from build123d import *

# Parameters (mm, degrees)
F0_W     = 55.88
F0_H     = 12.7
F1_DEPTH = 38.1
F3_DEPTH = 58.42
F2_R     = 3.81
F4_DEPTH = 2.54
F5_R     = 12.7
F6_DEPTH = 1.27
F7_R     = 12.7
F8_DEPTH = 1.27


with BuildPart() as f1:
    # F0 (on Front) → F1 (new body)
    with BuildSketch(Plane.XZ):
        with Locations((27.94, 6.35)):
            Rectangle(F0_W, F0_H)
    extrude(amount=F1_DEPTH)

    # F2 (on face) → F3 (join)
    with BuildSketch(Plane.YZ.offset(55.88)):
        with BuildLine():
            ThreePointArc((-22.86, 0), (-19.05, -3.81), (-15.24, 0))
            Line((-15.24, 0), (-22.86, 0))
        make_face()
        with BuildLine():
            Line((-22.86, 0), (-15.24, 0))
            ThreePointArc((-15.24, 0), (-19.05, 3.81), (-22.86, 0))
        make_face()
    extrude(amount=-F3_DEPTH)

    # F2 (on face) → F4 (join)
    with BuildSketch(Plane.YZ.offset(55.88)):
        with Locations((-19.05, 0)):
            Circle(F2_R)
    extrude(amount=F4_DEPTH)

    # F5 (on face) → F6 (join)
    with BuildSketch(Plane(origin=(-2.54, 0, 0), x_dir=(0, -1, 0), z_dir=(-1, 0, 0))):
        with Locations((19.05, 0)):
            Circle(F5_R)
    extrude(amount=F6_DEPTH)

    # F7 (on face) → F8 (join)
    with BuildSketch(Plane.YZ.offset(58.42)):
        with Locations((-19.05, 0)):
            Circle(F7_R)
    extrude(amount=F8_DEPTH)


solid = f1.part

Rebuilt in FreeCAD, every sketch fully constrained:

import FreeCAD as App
import Part
import Sketcher
from FreeCAD import Vector
Q = App.Units.Quantity


def add_polygon(sketch, points):
    """Adds a closed chain of lines whose ends are joined by coincident constraints."""
    first, n = sketch.GeometryCount, len(points)
    for a, b in zip(points, points[1:] + points[:1]):
        sketch.addGeometry(Part.LineSegment(App.Vector(*a, 0), App.Vector(*b, 0)), False)
    for i in range(n):
        sketch.addConstraint(Sketcher.Constraint("Coincident", first + i, 2, first + (i + 1) % n, 1))

doc = App.newDocument("Part")
body = doc.addObject("PartDesign::Body", "Body")

# Sketch on XZ plane
sketch1 = doc.addObject("Sketcher::SketchObject", "Sketch")
body.addObject(sketch1)
sketch1.AttachmentSupport = (doc.XZ_Plane, [""])
sketch1.MapMode = "FlatFace"
add_polygon(sketch1, [(0, 13), (0, 0), (56, 0), (56, 13)])  # lines 0-3
sketch1.addConstraint([
    Sketcher.Constraint("Vertical", 0),
    Sketcher.Constraint("Horizontal", 1),
    Sketcher.Constraint("Vertical", 2),
    Sketcher.Constraint("Horizontal", 3),
    Sketcher.Constraint("Coincident", 0, 2, -1, 1),
    Sketcher.Constraint("DistanceX", 1, 1, 1, 2, Q("2.2 in")),
    Sketcher.Constraint("DistanceY", 0, 2, 0, 1, Q("0.5 in")),
])
pad1 = doc.addObject("PartDesign::Pad", "Pad")
body.addObject(pad1)
pad1.Profile = sketch1
pad1.Length = Q("1.5 in")

# Sketch on YZ plane
sketch2 = doc.addObject("Sketcher::SketchObject", "Sketch001")
body.addObject(sketch2)
sketch2.AttachmentSupport = (doc.YZ_Plane, [""])
sketch2.MapMode = "FlatFace"
sketch2.AttachmentOffset = App.Placement(Vector(0, 0, 2.2 * 25.4), App.Rotation())
sketch2.addGeometry(Part.Circle(Vector(-19.1, 0, 0), Vector(0, 0, 1), 3.8), False)
sketch2.addConstraint([
    Sketcher.Constraint("PointOnObject", 0, 3, -1),
    Sketcher.Constraint("Diameter", 0, Q("0.3 in")),
    Sketcher.Constraint("DistanceX", 0, 3, -1, 1, Q("0.75 in")),
])
pad2 = doc.addObject("PartDesign::Pad", "Pad001")
body.addObject(pad2)
pad2.Profile = sketch2
pad2.Length = Q("2.3 in")
pad2.Reversed = True

# Sketch on YZ plane
sketch3 = doc.addObject("Sketcher::SketchObject", "Sketch002")
body.addObject(sketch3)
sketch3.AttachmentSupport = (doc.YZ_Plane, [""])
sketch3.MapMode = "FlatFace"
sketch3.AttachmentOffset = App.Placement(Vector(0, 0, 2.2 * 25.4), App.Rotation())
sketch3.addGeometry(Part.Circle(Vector(-19.1, 0, 0), Vector(0, 0, 1), 3.8), False)
sketch3.addConstraint([
    Sketcher.Constraint("PointOnObject", 0, 3, -1),
    Sketcher.Constraint("Diameter", 0, Q("0.3 in")),
    Sketcher.Constraint("DistanceX", 0, 3, -1, 1, Q("0.75 in")),
])
pad3 = doc.addObject("PartDesign::Pad", "Pad002")
body.addObject(pad3)
pad3.Profile = sketch3
pad3.Length = Q("0.1 in")

# Sketch on YZ plane
sketch4 = doc.addObject("Sketcher::SketchObject", "Sketch003")
body.addObject(sketch4)
sketch4.AttachmentSupport = (doc.YZ_Plane, [""])
sketch4.MapMode = "FlatFace"
sketch4.AttachmentOffset = App.Placement(Vector(0, 0, -0.1 * 25.4), App.Rotation())
sketch4.addGeometry(Part.Circle(Vector(-19, 0, 0), Vector(0, 0, 1), 13), False)
sketch4.addConstraint([
    Sketcher.Constraint("PointOnObject", 0, 3, -1),
    Sketcher.Constraint("Diameter", 0, Q("1 in")),
    Sketcher.Constraint("DistanceX", 0, 3, -1, 1, Q("0.75 in")),
])
pad4 = doc.addObject("PartDesign::Pad", "Pad003")
body.addObject(pad4)
pad4.Profile = sketch4
pad4.Length = Q("0.05 in")
pad4.Reversed = True

# Sketch on YZ plane
sketch5 = doc.addObject("Sketcher::SketchObject", "Sketch004")
body.addObject(sketch5)
sketch5.AttachmentSupport = (doc.YZ_Plane, [""])
sketch5.MapMode = "FlatFace"
sketch5.AttachmentOffset = App.Placement(Vector(0, 0, 2.3 * 25.4), App.Rotation())
sketch5.addGeometry(Part.Circle(Vector(-19, 0, 0), Vector(0, 0, 1), 13), False)
sketch5.addConstraint([
    Sketcher.Constraint("PointOnObject", 0, 3, -1),
    Sketcher.Constraint("Diameter", 0, Q("1 in")),
    Sketcher.Constraint("DistanceX", 0, 3, -1, 1, Q("0.75 in")),
])
pad5 = doc.addObject("PartDesign::Pad", "Pad004")
body.addObject(pad5)
pad5.Profile = sketch5
pad5.Length = Q("0.05 in")

doc.recompute()
